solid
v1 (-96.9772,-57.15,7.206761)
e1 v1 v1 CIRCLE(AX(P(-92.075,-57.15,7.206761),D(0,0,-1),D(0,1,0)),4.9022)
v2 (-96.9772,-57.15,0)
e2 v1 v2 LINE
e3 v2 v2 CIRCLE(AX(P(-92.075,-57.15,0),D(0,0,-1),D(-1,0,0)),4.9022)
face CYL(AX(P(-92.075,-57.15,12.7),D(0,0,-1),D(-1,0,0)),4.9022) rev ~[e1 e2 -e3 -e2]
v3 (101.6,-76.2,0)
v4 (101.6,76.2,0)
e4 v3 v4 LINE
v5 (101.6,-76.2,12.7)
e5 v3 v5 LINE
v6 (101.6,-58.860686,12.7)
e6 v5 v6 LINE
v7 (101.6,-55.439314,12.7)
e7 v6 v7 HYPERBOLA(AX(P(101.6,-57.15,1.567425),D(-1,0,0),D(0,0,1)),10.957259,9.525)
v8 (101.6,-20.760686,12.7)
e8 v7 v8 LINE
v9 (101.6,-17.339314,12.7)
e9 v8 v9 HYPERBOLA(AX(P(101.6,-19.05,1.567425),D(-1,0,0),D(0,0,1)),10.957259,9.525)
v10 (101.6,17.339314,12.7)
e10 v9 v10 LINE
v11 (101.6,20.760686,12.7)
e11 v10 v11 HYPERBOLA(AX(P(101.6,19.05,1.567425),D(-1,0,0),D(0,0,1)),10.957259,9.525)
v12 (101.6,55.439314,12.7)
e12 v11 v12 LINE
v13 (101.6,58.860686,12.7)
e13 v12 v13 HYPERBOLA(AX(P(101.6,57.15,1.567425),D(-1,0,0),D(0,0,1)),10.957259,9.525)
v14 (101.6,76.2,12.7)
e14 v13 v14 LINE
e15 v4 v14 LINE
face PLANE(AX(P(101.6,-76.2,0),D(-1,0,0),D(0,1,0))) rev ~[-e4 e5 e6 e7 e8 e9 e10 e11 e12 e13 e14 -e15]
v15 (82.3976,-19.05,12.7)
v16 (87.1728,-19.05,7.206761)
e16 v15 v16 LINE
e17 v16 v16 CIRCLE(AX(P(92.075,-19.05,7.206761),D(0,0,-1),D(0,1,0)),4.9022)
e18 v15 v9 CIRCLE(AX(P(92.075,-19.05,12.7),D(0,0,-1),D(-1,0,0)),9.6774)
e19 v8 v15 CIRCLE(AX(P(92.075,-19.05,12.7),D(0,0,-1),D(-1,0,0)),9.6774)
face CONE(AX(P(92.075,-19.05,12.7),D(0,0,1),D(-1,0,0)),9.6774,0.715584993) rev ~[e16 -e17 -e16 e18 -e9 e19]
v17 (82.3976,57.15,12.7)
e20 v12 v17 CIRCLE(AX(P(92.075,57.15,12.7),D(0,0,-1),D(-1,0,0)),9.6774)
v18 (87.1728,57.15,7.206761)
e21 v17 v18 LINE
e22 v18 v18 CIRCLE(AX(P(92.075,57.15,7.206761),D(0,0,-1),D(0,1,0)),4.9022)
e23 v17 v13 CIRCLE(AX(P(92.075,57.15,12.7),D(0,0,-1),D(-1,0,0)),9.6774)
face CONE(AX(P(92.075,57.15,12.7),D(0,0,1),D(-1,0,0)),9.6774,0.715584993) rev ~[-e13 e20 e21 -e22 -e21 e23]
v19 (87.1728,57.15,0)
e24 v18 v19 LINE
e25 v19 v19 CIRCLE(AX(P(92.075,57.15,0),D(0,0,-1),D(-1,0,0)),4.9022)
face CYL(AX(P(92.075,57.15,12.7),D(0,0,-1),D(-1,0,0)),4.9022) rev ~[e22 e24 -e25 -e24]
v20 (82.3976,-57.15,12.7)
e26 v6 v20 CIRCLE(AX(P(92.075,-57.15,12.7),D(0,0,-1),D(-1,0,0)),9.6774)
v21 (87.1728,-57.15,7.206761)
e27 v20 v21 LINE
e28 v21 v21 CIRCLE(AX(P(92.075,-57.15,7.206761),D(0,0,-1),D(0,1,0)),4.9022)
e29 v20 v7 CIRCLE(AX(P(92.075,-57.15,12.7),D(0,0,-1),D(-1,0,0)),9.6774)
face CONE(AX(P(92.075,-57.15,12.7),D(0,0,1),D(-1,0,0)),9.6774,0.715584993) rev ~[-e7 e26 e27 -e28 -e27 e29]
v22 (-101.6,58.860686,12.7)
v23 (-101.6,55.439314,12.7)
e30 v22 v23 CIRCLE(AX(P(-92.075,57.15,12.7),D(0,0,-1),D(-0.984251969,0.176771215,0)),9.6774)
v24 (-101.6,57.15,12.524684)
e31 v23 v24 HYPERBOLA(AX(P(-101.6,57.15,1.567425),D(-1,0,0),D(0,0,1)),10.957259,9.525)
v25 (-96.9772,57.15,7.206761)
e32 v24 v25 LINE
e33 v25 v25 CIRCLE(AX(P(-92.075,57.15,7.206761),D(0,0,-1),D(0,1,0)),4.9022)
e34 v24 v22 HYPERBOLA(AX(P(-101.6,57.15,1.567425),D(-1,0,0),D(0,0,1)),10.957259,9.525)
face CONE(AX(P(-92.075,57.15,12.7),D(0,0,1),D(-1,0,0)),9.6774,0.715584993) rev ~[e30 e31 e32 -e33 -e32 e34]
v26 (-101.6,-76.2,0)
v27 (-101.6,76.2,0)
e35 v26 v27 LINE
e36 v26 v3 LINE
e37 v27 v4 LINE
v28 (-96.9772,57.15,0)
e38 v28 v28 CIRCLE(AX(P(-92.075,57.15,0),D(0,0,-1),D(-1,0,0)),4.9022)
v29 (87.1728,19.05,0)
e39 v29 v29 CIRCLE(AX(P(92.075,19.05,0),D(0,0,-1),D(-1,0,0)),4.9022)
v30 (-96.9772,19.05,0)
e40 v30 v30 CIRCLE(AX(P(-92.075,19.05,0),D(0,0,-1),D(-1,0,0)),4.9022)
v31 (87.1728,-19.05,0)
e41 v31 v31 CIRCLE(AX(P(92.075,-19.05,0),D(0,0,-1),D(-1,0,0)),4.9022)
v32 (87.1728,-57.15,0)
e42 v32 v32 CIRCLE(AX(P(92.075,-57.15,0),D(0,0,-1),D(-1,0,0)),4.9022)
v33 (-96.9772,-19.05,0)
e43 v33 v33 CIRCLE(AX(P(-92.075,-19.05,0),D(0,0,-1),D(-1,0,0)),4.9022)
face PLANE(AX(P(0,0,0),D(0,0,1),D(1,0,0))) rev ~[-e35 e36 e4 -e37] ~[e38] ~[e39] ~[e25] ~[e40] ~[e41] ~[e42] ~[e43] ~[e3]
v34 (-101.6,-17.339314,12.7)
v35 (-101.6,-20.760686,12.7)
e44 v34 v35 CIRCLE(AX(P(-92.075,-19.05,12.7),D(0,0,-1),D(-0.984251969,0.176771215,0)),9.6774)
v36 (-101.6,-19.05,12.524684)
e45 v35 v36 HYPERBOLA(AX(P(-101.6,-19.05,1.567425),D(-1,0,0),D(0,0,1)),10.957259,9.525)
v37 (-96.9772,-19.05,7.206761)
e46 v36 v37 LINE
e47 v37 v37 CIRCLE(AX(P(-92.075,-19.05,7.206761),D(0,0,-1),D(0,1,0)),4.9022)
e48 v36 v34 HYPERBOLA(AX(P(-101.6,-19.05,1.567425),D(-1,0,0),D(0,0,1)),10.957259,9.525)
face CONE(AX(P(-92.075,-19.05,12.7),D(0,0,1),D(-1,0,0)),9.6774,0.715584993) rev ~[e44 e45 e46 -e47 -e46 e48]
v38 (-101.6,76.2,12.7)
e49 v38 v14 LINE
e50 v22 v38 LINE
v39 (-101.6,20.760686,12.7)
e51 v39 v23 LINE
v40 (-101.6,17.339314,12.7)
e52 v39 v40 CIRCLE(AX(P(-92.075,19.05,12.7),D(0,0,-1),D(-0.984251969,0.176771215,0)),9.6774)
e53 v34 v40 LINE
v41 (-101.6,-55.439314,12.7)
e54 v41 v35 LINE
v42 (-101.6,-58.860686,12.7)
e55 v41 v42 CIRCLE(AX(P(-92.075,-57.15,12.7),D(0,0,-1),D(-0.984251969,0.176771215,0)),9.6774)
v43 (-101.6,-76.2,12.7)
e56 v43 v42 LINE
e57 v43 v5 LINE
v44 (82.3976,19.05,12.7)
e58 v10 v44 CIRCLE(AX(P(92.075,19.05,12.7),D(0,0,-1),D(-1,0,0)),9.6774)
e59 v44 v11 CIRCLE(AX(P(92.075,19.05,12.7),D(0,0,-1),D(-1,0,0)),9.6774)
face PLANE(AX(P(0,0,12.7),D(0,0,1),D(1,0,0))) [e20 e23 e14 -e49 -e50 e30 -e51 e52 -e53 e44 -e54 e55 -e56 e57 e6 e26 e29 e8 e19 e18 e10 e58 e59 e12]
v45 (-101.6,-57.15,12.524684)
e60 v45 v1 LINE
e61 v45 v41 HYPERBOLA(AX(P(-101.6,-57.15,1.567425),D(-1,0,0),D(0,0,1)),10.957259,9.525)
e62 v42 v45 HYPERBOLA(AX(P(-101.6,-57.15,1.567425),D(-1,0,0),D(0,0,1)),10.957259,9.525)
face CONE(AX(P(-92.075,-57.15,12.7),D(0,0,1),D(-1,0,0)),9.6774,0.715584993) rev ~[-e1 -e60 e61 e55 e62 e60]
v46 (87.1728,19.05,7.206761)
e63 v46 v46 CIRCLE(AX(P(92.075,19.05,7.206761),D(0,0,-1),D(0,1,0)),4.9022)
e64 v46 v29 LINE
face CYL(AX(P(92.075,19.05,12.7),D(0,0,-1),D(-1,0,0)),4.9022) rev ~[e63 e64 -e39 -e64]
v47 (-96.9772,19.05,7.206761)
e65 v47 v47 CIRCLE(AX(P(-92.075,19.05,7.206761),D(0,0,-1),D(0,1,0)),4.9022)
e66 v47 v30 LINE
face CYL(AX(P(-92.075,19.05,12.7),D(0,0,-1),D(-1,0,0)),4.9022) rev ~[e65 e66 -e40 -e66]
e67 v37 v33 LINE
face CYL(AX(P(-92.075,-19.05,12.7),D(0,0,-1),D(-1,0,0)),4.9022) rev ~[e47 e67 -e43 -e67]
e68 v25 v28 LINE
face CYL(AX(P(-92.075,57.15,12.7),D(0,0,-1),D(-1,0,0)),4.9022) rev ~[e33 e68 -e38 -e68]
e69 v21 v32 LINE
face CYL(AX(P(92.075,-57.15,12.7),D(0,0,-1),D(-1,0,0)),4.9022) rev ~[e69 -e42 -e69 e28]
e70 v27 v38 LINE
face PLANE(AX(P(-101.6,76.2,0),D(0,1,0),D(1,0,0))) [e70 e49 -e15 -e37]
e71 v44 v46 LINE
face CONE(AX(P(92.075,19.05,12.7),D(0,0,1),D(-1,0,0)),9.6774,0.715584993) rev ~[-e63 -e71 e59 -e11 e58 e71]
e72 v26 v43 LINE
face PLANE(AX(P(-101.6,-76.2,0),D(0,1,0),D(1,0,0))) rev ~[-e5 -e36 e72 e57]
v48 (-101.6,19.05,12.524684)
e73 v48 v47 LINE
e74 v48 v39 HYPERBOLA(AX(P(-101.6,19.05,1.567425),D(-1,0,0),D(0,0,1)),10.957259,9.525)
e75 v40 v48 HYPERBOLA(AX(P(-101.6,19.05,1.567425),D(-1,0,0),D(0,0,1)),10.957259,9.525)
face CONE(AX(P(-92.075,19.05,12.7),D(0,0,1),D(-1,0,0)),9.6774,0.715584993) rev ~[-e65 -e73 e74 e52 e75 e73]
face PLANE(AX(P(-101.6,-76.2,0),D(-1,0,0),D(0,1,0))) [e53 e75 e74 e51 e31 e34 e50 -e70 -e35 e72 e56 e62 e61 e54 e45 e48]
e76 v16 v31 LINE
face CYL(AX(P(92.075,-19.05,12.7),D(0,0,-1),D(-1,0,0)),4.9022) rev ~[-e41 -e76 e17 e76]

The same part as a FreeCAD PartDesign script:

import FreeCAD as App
import Part
import Sketcher
Q = App.Units.Quantity


def add_polygon(sketch, points):
    """Adds a closed chain of lines whose ends are joined by coincident constraints."""
    first, n = sketch.GeometryCount, len(points)
    for a, b in zip(points, points[1:] + points[:1]):
        sketch.addGeometry(Part.LineSegment(App.Vector(*a, 0), App.Vector(*b, 0)), False)
    for i in range(n):
        sketch.addConstraint(Sketcher.Constraint("Coincident", first + i, 2, first + (i + 1) % n, 1))

doc = App.newDocument("Part")
body = doc.addObject("PartDesign::Body", "Body")

# Sketch on XY plane
sketch1 = body.newObject("Sketcher::SketchObject", "Sketch")
sketch1.AttachmentSupport = (doc.getObject("XY_Plane"), [""])
sketch1.MapMode = "FlatFace"
add_polygon(sketch1, [(-102, 76), (-102, -76), (102, -76), (102, 76)])  # lines 0-3
sketch1.addConstraint([
    Sketcher.Constraint("Vertical", 0),
    Sketcher.Constraint("Horizontal", 1),
    Sketcher.Constraint("Vertical", 2),
    Sketcher.Constraint("Horizontal", 3),
    Sketcher.Constraint("Symmetric", 0, 2, 2, 2, -1, 1),
    Sketcher.Constraint("DistanceX", 1, 1, 1, 2, Q("8 in")),
    Sketcher.Constraint("DistanceY", 0, 2, 0, 1, Q("6 in")),
])
pad1 = body.newObject("PartDesign::Pad", "Pad")
pad1.Profile = sketch1
pad1.Length = Q("0.5 in")

# Sketch on XY plane
sketch2 = body.newObject("Sketcher::SketchObject", "Sketch001")
sketch2.AttachmentSupport = (doc.getObject("XY_Plane"), [""])
sketch2.MapMode = "FlatFace"
sketch2.AttachmentOffset = App.Placement(App.Vector(0, 0, 0.5 * 25.4), App.Rotation())
sketch2.addGeometry([
    Part.Circle(App.Vector(-92.1, 57.1, 0), App.Vector(0, 0, 1), 4.9),  # 0
    Part.Circle(App.Vector(-92.1, -57.1, 0), App.Vector(0, 0, 1), 4.9),  # 1
    Part.Circle(App.Vector(92.1, -57.1, 0), App.Vector(0, 0, 1), 4.9),  # 2
    Part.Circle(App.Vector(92.1, 57.1, 0), App.Vector(0, 0, 1), 4.9),  # 3
    Part.Circle(App.Vector(-92.1, 19.1, 0), App.Vector(0, 0, 1), 4.9),  # 4
    Part.Circle(App.Vector(92.1, 19.1, 0), App.Vector(0, 0, 1), 4.9),  # 5
    Part.Circle(App.Vector(92.1, -19.1, 0), App.Vector(0, 0, 1), 4.9),  # 6
    Part.Circle(App.Vector(-92.1, -19.1, 0), App.Vector(0, 0, 1), 4.9),  # 7
], False)
sketch2.addConstraint([
    Sketcher.Constraint("Equal", 0, 1),
    Sketcher.Constraint("Equal", 1, 2),
    Sketcher.Constraint("Equal", 2, 3),
    Sketcher.Constraint("Equal", 3, 4),
    Sketcher.Constraint("Equal", 4, 5),
    Sketcher.Constraint("Equal", 5, 6),
    Sketcher.Constraint("Equal", 6, 7),
    Sketcher.Constraint("Symmetric", 0, 3, 2, 3, -1, 1),
    Sketcher.Constraint("Symmetric", 1, 3, 3, 3, -1, 1),
    Sketcher.Constraint("Symmetric", 4, 3, 6, 3, -1, 1),
    Sketcher.Constraint("Symmetric", 5, 3, 7, 3, -1, 1),
    Sketcher.Constraint("Symmetric", 1, 3, 2, 3, -2),
    Sketcher.Constraint("Symmetric", 4, 3, 5, 3, -2),
    Sketcher.Constraint("Vertical", 1, 3, 4, 3),
    Sketcher.Constraint("Diameter", 0, Q("0.386 in")),
    Sketcher.Constraint("DistanceY", 1, 3, 4, 3, Q("3 in")),
    Sketcher.Constraint("DistanceY", 1, 3, 0, 3, Q("4.5 in")),
    Sketcher.Constraint("DistanceX", 1, 3, 2, 3, Q("7.25 in")),
])
doc.recompute()
hole = body.newObject("PartDesign::Hole", "Hole")
hole.Profile = sketch2
hole.ThreadType = "None"
hole.Diameter = Q("0.386 in")
hole.DepthType = "ThroughAll"
hole.HoleCutType = "Countersink"
hole.HoleCutDiameter = Q("0.762 in")
hole.HoleCutCountersinkAngle = 82

doc.recompute()
